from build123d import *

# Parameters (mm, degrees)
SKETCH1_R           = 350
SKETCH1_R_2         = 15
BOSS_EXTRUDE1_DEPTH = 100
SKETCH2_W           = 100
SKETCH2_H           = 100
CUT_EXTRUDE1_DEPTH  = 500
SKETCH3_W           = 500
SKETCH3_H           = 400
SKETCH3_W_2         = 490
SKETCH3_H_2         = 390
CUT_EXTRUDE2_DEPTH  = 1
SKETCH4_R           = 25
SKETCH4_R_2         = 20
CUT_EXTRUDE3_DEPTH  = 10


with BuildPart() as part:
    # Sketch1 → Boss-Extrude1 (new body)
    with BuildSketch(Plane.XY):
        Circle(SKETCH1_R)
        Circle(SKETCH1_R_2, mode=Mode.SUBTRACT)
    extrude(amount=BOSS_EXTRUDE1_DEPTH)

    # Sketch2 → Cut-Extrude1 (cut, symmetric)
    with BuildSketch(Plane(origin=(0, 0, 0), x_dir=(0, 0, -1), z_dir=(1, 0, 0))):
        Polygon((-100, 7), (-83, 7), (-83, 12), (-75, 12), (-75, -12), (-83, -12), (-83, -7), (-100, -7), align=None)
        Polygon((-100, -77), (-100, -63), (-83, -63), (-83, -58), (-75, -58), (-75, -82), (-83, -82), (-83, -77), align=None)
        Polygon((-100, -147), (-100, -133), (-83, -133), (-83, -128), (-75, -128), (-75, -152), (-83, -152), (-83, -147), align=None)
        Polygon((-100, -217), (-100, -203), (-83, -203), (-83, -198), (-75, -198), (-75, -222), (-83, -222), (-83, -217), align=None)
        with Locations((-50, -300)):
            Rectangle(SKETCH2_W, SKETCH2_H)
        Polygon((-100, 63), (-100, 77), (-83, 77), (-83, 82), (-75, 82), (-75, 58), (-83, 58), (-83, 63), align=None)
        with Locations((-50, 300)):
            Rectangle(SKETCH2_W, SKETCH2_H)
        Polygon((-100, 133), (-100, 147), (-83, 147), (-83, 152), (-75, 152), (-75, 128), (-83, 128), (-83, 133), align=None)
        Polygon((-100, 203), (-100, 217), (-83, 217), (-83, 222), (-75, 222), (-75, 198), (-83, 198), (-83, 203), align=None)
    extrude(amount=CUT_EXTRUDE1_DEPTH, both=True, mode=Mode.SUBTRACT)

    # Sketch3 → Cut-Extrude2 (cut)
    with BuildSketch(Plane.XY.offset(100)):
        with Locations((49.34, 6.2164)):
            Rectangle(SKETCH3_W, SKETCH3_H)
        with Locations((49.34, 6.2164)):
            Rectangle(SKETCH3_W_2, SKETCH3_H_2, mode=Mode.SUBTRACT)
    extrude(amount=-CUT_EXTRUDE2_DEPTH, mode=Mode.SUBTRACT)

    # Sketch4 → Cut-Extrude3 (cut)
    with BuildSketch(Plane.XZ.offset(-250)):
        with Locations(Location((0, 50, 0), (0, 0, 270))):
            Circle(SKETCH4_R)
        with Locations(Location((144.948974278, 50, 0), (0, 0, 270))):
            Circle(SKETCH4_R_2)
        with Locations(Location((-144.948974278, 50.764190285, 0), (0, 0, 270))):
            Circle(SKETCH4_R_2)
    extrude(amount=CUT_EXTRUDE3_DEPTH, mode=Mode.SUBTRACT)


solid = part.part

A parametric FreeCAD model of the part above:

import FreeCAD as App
import Part
import Sketcher

doc = App.newDocument("Part")
body = doc.addObject("PartDesign::Body", "Body")

# Sketch on XY plane
sketch1 = doc.addObject("Sketcher::SketchObject", "Sketch")
body.addObject(sketch1)
sketch1.AttachmentSupport = (doc.XY_Plane, [""])
sketch1.MapMode = "FlatFace"
sketch1.addGeometry(Part.Circle(App.Vector(0, 0, 0), App.Vector(0, 0, 1), 350), False)
sketch1.addGeometry(Part.Circle(App.Vector(0, 0, 0), App.Vector(0, 0, 1), 15), False)
sketch1.addConstraint(Sketcher.Constraint("Coincident", 0, 3, -1, 1))
sketch1.addConstraint(Sketcher.Constraint("Coincident", 1, 3, -1, 1))
sketch1.addConstraint(Sketcher.Constraint("Diameter", 0, 700.0))
sketch1.addConstraint(Sketcher.Constraint("Diameter", 1, 30.0))
pad1 = doc.addObject("PartDesign::Pad", "Pad")
body.addObject(pad1)
pad1.Profile = sketch1
pad1.Length = 100

# Sketch on YZ plane
sketch2 = doc.addObject("Sketcher::SketchObject", "Sketch001")
body.addObject(sketch2)
sketch2.AttachmentSupport = (doc.YZ_Plane, [""])
sketch2.MapMode = "FlatFace"
sketch2.addGeometry(Part.LineSegment(App.Vector(7, 83, 0), App.Vector(7, 100, 0)), False)
sketch2.addGeometry(Part.LineSegment(App.Vector(7, 100, 0), App.Vector(-7, 100, 0)), False)
sketch2.addGeometry(Part.LineSegment(App.Vector(-7, 100, 0), App.Vector(-7, 83, 0)), False)
sketch2.addGeometry(Part.LineSegment(App.Vector(-7, 83, 0), App.Vector(-12, 83, 0)), False)
sketch2.addGeometry(Part.LineSegment(App.Vector(-12, 83, 0), App.Vector(-12, 75, 0)), False)
sketch2.addGeometry(Part.LineSegment(App.Vector(-12, 75, 0), App.Vector(12, 75, 0)), False)
sketch2.addGeometry(Part.LineSegment(App.Vector(12, 75, 0), App.Vector(12, 83, 0)), False)
sketch2.addGeometry(Part.LineSegment(App.Vector(12, 83, 0), App.Vector(7, 83, 0)), False)
sketch2.addGeometry(Part.LineSegment(App.Vector(-63, 100, 0), App.Vector(-77, 100, 0)), False)
sketch2.addGeometry(Part.LineSegment(App.Vector(-77, 100, 0), App.Vector(-77, 83, 0)), False)
sketch2.addGeometry(Part.LineSegment(App.Vector(-77, 83, 0), App.Vector(-82, 83, 0)), False)
sketch2.addGeometry(Part.LineSegment(App.Vector(-82, 83, 0), App.Vector(-82, 75, 0)), False)
sketch2.addGeometry(Part.LineSegment(App.Vector(-82, 75, 0), App.Vector(-58, 75, 0)), False)
sketch2.addGeometry(Part.LineSegment(App.Vector(-58, 75, 0), App.Vector(-58, 83, 0)), False)
sketch2.addGeometry(Part.LineSegment(App.Vector(-58, 83, 0), App.Vector(-63, 83, 0)), False)
sketch2.addGeometry(Part.LineSegment(App.Vector(-63, 83, 0), App.Vector(-63, 100, 0)), False)
sketch2.addGeometry(Part.LineSegment(App.Vector(-133, 100, 0), App.Vector(-147, 100, 0)), False)
sketch2.addGeometry(Part.LineSegment(App.Vector(-147, 100, 0), App.Vector(-147, 83, 0)), False)
sketch2.addGeometry(Part.LineSegment(App.Vector(-147, 83, 0), App.Vector(-152, 83, 0)), False)
sketch2.addGeometry(Part.LineSegment(App.Vector(-152, 83, 0), App.Vector(-152, 75, 0)), False)
sketch2.addGeometry(Part.LineSegment(App.Vector(-152, 75, 0), App.Vector(-128, 75, 0)), False)
sketch2.addGeometry(Part.LineSegment(App.Vector(-128, 75, 0), App.Vector(-128, 83, 0)), False)
sketch2.addGeometry(Part.LineSegment(App.Vector(-128, 83, 0), App.Vector(-133, 83, 0)), False)
sketch2.addGeometry(Part.LineSegment(App.Vector(-133, 83, 0), App.Vector(-133, 100, 0)), False)
sketch2.addGeometry(Part.LineSegment(App.Vector(-203, 100, 0), App.Vector(-217, 100, 0)), False)
sketch2.addGeometry(Part.LineSegment(App.Vector(-217, 100, 0), App.Vector(-217, 83, 0)), False)
sketch2.addGeometry(Part.LineSegment(App.Vector(-217, 83, 0), App.Vector(-222, 83, 0)), False)
sketch2.addGeometry(Part.LineSegment(App.Vector(-222, 83, 0), App.Vector(-222, 75, 0)), False)
sketch2.addGeometry(Part.LineSegment(App.Vector(-222, 75, 0), App.Vector(-198, 75, 0)), False)
sketch2.addGeometry(Part.LineSegment(App.Vector(-198, 75, 0), App.Vector(-198, 83, 0)), False)
sketch2.addGeometry(Part.LineSegment(App.Vector(-198, 83, 0), App.Vector(-203, 83, 0)), False)
sketch2.addGeometry(Part.LineSegment(App.Vector(-203, 83, 0), App.Vector(-203, 100, 0)), False)
sketch2.addGeometry(Part.LineSegment(App.Vector(-250, 100, 0), App.Vector(-350, 100, 0)), False)
sketch2.addGeometry(Part.LineSegment(App.Vector(-350, 100, 0), App.Vector(-350, 0, 0)), False)
sketch2.addGeometry(Part.LineSegment(App.Vector(-350, 0, 0), App.Vector(-250, 0, 0)), False)
sketch2.addGeometry(Part.LineSegment(App.Vector(-250, 0, 0), App.Vector(-250, 100, 0)), False)
sketch2.addGeometry(Part.LineSegment(App.Vector(77, 100, 0), App.Vector(63, 100, 0)), False)
sketch2.addGeometry(Part.LineSegment(App.Vector(63, 100, 0), App.Vector(63, 83, 0)), False)
sketch2.addGeometry(Part.LineSegment(App.Vector(63, 83, 0), App.Vector(58, 83, 0)), False)
sketch2.addGeometry(Part.LineSegment(App.Vector(58, 83, 0), App.Vector(58, 75, 0)), False)
sketch2.addGeometry(Part.LineSegment(App.Vector(58, 75, 0), App.Vector(82, 75, 0)), False)
sketch2.addGeometry(Part.LineSegment(App.Vector(82, 75, 0), App.Vector(82, 83, 0)), False)
sketch2.addGeometry(Part.LineSegment(App.Vector(82, 83, 0), App.Vector(77, 83, 0)), False)
sketch2.addGeometry(Part.LineSegment(App.Vector(77, 83, 0), App.Vector(77, 100, 0)), False)
sketch2.addGeometry(Part.LineSegment(App.Vector(350, 100, 0), App.Vector(250, 100, 0)), False)
sketch2.addGeometry(Part.LineSegment(App.Vector(250, 100, 0), App.Vector(250, 0, 0)), False)
sketch2.addGeometry(Part.LineSegment(App.Vector(250, 0, 0), App.Vector(350, 0, 0)), False)
sketch2.addGeometry(Part.LineSegment(App.Vector(350, 0, 0), App.Vector(350, 100, 0)), False)
sketch2.addGeometry(Part.LineSegment(App.Vector(147, 100, 0), App.Vector(133, 100, 0)), False)
sketch2.addGeometry(Part.LineSegment(App.Vector(133, 100, 0), App.Vector(133, 83, 0)), False)
sketch2.addGeometry(Part.LineSegment(App.Vector(133, 83, 0), App.Vector(128, 83, 0)), False)
sketch2.addGeometry(Part.LineSegment(App.Vector(128, 83, 0), App.Vector(128, 75, 0)), False)
sketch2.addGeometry(Part.LineSegment(App.Vector(128, 75, 0), App.Vector(152, 75, 0)), False)
sketch2.addGeometry(Part.LineSegment(App.Vector(152, 75, 0), App.Vector(152, 83, 0)), False)
sketch2.addGeometry(Part.LineSegment(App.Vector(152, 83, 0), App.Vector(147, 83, 0)), False)
sketch2.addGeometry(Part.LineSegment(App.Vector(147, 83, 0), App.Vector(147, 100, 0)), False)
sketch2.addGeometry(Part.LineSegment(App.Vector(217, 100, 0), App.Vector(203, 100, 0)), False)
sketch2.addGeometry(Part.LineSegment(App.Vector(203, 100, 0), App.Vector(203, 83, 0)), False)
sketch2.addGeometry(Part.LineSegment(App.Vector(203, 83, 0), App.Vector(198, 83, 0)), False)
sketch2.addGeometry(Part.LineSegment(App.Vector(198, 83, 0), App.Vector(198, 75, 0)), False)
sketch2.addGeometry(Part.LineSegment(App.Vector(198, 75, 0), App.Vector(222, 75, 0)), False)
sketch2.addGeometry(Part.LineSegment(App.Vector(222, 75, 0), App.Vector(222, 83, 0)), False)
sketch2.addGeometry(Part.LineSegment(App.Vector(222, 83, 0), App.Vector(217, 83, 0)), False)
sketch2.addGeometry(Part.LineSegment(App.Vector(217, 83, 0), App.Vector(217, 100, 0)), False)
sketch2.addConstraint(Sketcher.Constraint("Coincident", 0, 2, 1, 1))
sketch2.addConstraint(Sketcher.Constraint("Coincident", 1, 2, 2, 1))
sketch2.addConstraint(Sketcher.Constraint("Coincident", 2, 2, 3, 1))
sketch2.addConstraint(Sketcher.Constraint("Coincident", 3, 2, 4, 1))
sketch2.addConstraint(Sketcher.Constraint("Coincident", 4, 2, 5, 1))
sketch2.addConstraint(Sketcher.Constraint("Coincident", 5, 2, 6, 1))
sketch2.addConstraint(Sketcher.Constraint("Coincident", 6, 2, 7, 1))
sketch2.addConstraint(Sketcher.Constraint("Coincident", 7, 2, 0, 1))
sketch2.addConstraint(Sketcher.Constraint("Coincident", 8, 2, 9, 1))
sketch2.addConstraint(Sketcher.Constraint("Coincident", 9, 2, 10, 1))
sketch2.addConstraint(Sketcher.Constraint("Coincident", 10, 2, 11, 1))
sketch2.addConstraint(Sketcher.Constraint("Coincident", 11, 2, 12, 1))
sketch2.addConstraint(Sketcher.Constraint("Coincident", 12, 2, 13, 1))
sketch2.addConstraint(Sketcher.Constraint("Coincident", 13, 2, 14, 1))
sketch2.addConstraint(Sketcher.Constraint("Coincident", 14, 2, 15, 1))
sketch2.addConstraint(Sketcher.Constraint("Coincident", 15, 2, 8, 1))
sketch2.addConstraint(Sketcher.Constraint("Coincident", 16, 2, 17, 1))
sketch2.addConstraint(Sketcher.Constraint("Coincident", 17, 2, 18, 1))
sketch2.addConstraint(Sketcher.Constraint("Coincident", 18, 2, 19, 1))
sketch2.addConstraint(Sketcher.Constraint("Coincident", 19, 2, 20, 1))
sketch2.addConstraint(Sketcher.Constraint("Coincident", 20, 2, 21, 1))
sketch2.addConstraint(Sketcher.Constraint("Coincident", 21, 2, 22, 1))
sketch2.addConstraint(Sketcher.Constraint("Coincident", 22, 2, 23, 1))
sketch2.addConstraint(Sketcher.Constraint("Coincident", 23, 2, 16, 1))
sketch2.addConstraint(Sketcher.Constraint("Coincident", 24, 2, 25, 1))
sketch2.addConstraint(Sketcher.Constraint("Coincident", 25, 2, 26, 1))
sketch2.addConstraint(Sketcher.Constraint("Coincident", 26, 2, 27, 1))
sketch2.addConstraint(Sketcher.Constraint("Coincident", 27, 2, 28, 1))
sketch2.addConstraint(Sketcher.Constraint("Coincident", 28, 2, 29, 1))
sketch2.addConstraint(Sketcher.Constraint("Coincident", 29, 2, 30, 1))
sketch2.addConstraint(Sketcher.Constraint("Coincident", 30, 2, 31, 1))
sketch2.addConstraint(Sketcher.Constraint("Coincident", 31, 2, 24, 1))
sketch2.addConstraint(Sketcher.Constraint("Coincident", 32, 2, 33, 1))
sketch2.addConstraint(Sketcher.Constraint("Coincident", 33, 2, 34, 1))
sketch2.addConstraint(Sketcher.Constraint("Coincident", 34, 2, 35, 1))
sketch2.addConstraint(Sketcher.Constraint("Coincident", 35, 2, 32, 1))
sketch2.addConstraint(Sketcher.Constraint("Coincident", 36, 2, 37, 1))
sketch2.addConstraint(Sketcher.Constraint("Coincident", 37, 2, 38, 1))
sketch2.addConstraint(Sketcher.Constraint("Coincident", 38, 2, 39, 1))
sketch2.addConstraint(Sketcher.Constraint("Coincident", 39, 2, 40, 1))
sketch2.addConstraint(Sketcher.Constraint("Coincident", 40, 2, 41, 1))
sketch2.addConstraint(Sketcher.Constraint("Coincident", 41, 2, 42, 1))
sketch2.addConstraint(Sketcher.Constraint("Coincident", 42, 2, 43, 1))
sketch2.addConstraint(Sketcher.Constraint("Coincident", 43, 2, 36, 1))
sketch2.addConstraint(Sketcher.Constraint("Coincident", 44, 2, 45, 1))
sketch2.addConstraint(Sketcher.Constraint("Coincident", 45, 2, 46, 1))
sketch2.addConstraint(Sketcher.Constraint("Coincident", 46, 2, 47, 1))
sketch2.addConstraint(Sketcher.Constraint("Coincident", 47, 2, 44, 1))
sketch2.addConstraint(Sketcher.Constraint("Coincident", 48, 2, 49, 1))
sketch2.addConstraint(Sketcher.Constraint("Coincident", 49, 2, 50, 1))
sketch2.addConstraint(Sketcher.Constraint("Coincident", 50, 2, 51, 1))
sketch2.addConstraint(Sketcher.Constraint("Coincident", 51, 2, 52, 1))
sketch2.addConstraint(Sketcher.Constraint("Coincident", 52, 2, 53, 1))
sketch2.addConstraint(Sketcher.Constraint("Coincident", 53, 2, 54, 1))
sketch2.addConstraint(Sketcher.Constraint("Coincident", 54, 2, 55, 1))
sketch2.addConstraint(Sketcher.Constraint("Coincident", 55, 2, 48, 1))
sketch2.addConstraint(Sketcher.Constraint("Coincident", 56, 2, 57, 1))
sketch2.addConstraint(Sketcher.Constraint("Coincident", 57, 2, 58, 1))
sketch2.addConstraint(Sketcher.Constraint("Coincident", 58, 2, 59, 1))
sketch2.addConstraint(Sketcher.Constraint("Coincident", 59, 2, 60, 1))
sketch2.addConstraint(Sketcher.Constraint("Coincident", 60, 2, 61, 1))
sketch2.addConstraint(Sketcher.Constraint("Coincident", 61, 2, 62, 1))
sketch2.addConstraint(Sketcher.Constraint("Coincident", 62, 2, 63, 1))
sketch2.addConstraint(Sketcher.Constraint("Coincident", 63, 2, 56, 1))
sketch2.addConstraint(Sketcher.Constraint("Vertical", 0))
sketch2.addConstraint(Sketcher.Constraint("Horizontal", 1))
sketch2.addConstraint(Sketcher.Constraint("Vertical", 2))
sketch2.addConstraint(Sketcher.Constraint("Horizontal", 3))
sketch2.addConstraint(Sketcher.Constraint("Vertical", 4))
sketch2.addConstraint(Sketcher.Constraint("Horizontal", 5))
sketch2.addConstraint(Sketcher.Constraint("Vertical", 6))
sketch2.addConstraint(Sketcher.Constraint("Horizontal", 7))
sketch2.addConstraint(Sketcher.Constraint("Horizontal", 8))
sketch2.addConstraint(Sketcher.Constraint("Vertical", 9))
sketch2.addConstraint(Sketcher.Constraint("Horizontal", 10))
sketch2.addConstraint(Sketcher.Constraint("Vertical", 11))
sketch2.addConstraint(Sketcher.Constraint("Horizontal", 12))
sketch2.addConstraint(Sketcher.Constraint("Vertical", 13))
sketch2.addConstraint(Sketcher.Constraint("Horizontal", 14))
sketch2.addConstraint(Sketcher.Constraint("Vertical", 15))
sketch2.addConstraint(Sketcher.Constraint("Horizontal", 16))
sketch2.addConstraint(Sketcher.Constraint("Vertical", 17))
sketch2.addConstraint(Sketcher.Constraint("Horizontal", 18))
sketch2.addConstraint(Sketcher.Constraint("Vertical", 19))
sketch2.addConstraint(Sketcher.Constraint("Horizontal", 20))
sketch2.addConstraint(Sketcher.Constraint("Vertical", 21))
sketch2.addConstraint(Sketcher.Constraint("Horizontal", 22))
sketch2.addConstraint(Sketcher.Constraint("Vertical", 23))
sketch2.addConstraint(Sketcher.Constraint("Horizontal", 24))
sketch2.addConstraint(Sketcher.Constraint("Vertical", 25))
sketch2.addConstraint(Sketcher.Constraint("Horizontal", 26))
sketch2.addConstraint(Sketcher.Constraint("Vertical", 27))
sketch2.addConstraint(Sketcher.Constraint("Horizontal", 28))
sketch2.addConstraint(Sketcher.Constraint("Vertical", 29))
sketch2.addConstraint(Sketcher.Constraint("Horizontal", 30))
sketch2.addConstraint(Sketcher.Constraint("Vertical", 31))
sketch2.addConstraint(Sketcher.Constraint("Horizontal", 32))
sketch2.addConstraint(Sketcher.Constraint("Vertical", 33))
sketch2.addConstraint(Sketcher.Constraint("Horizontal", 34))
sketch2.addConstraint(Sketcher.Constraint("Vertical", 35))
sketch2.addConstraint(Sketcher.Constraint("Horizontal", 36))
sketch2.addConstraint(Sketcher.Constraint("Vertical", 37))
sketch2.addConstraint(Sketcher.Constraint("Horizontal", 38))
sketch2.addConstraint(Sketcher.Constraint("Vertical", 39))
sketch2.addConstraint(Sketcher.Constraint("Horizontal", 40))
sketch2.addConstraint(Sketcher.Constraint("Vertical", 41))
sketch2.addConstraint(Sketcher.Constraint("Horizontal", 42))
sketch2.addConstraint(Sketcher.Constraint("Vertical", 43))
sketch2.addConstraint(Sketcher.Constraint("Horizontal", 44))
sketch2.addConstraint(Sketcher.Constraint("Vertical", 45))
sketch2.addConstraint(Sketcher.Constraint("Horizontal", 46))
sketch2.addConstraint(Sketcher.Constraint("Vertical", 47))
sketch2.addConstraint(Sketcher.Constraint("Horizontal", 48))
sketch2.addConstraint(Sketcher.Constraint("Vertical", 49))
sketch2.addConstraint(Sketcher.Constraint("Horizontal", 50))
sketch2.addConstraint(Sketcher.Constraint("Vertical", 51))
sketch2.addConstraint(Sketcher.Constraint("Horizontal", 52))
sketch2.addConstraint(Sketcher.Constraint("Vertical", 53))
sketch2.addConstraint(Sketcher.Constraint("Horizontal", 54))
sketch2.addConstraint(Sketcher.Constraint("Vertical", 55))
sketch2.addConstraint(Sketcher.Constraint("Horizontal", 56))
sketch2.addConstraint(Sketcher.Constraint("Vertical", 57))
sketch2.addConstraint(Sketcher.Constraint("Horizontal", 58))
sketch2.addConstraint(Sketcher.Constraint("Vertical", 59))
sketch2.addConstraint(Sketcher.Constraint("Horizontal", 60))
sketch2.addConstraint(Sketcher.Constraint("Vertical", 61))
sketch2.addConstraint(Sketcher.Constraint("Horizontal", 62))
sketch2.addConstraint(Sketcher.Constraint("Vertical", 63))
sketch2.addConstraint(Sketcher.Constraint("Symmetric", 34, 2, 45, 2, -1, 1))
sketch2.addConstraint(Sketcher.Constraint("Symmetric", 3, 2, 6, 2, -2))
sketch2.addConstraint(Sketcher.Constraint("Symmetric", 15, 2, 36, 2, -2))
sketch2.addConstraint(Sketcher.Constraint("Symmetric", 13, 2, 38, 2, -2))
sketch2.addConstraint(Sketcher.Constraint("Symmetric", 11, 2, 40, 2, -2))
sketch2.addConstraint(Sketcher.Constraint("Symmetric", 9, 2, 42, 2, -2))
sketch2.addConstraint(Sketcher.Constraint("Symmetric", 33, 2, 46, 2, -2))
sketch2.addConstraint(Sketcher.Constraint("Symmetric", 23, 2, 48, 2, -2))
sketch2.addConstraint(Sketcher.Constraint("Symmetric", 21, 2, 50, 2, -2))
sketch2.addConstraint(Sketcher.Constraint("Symmetric", 19, 2, 52, 2, -2))
sketch2.addConstraint(Sketcher.Constraint("Symmetric", 17, 2, 54, 2, -2))
sketch2.addConstraint(Sketcher.Constraint("Symmetric", 31, 2, 56, 2, -2))
sketch2.addConstraint(Sketcher.Constraint("Symmetric", 29, 2, 58, 2, -2))
sketch2.addConstraint(Sketcher.Constraint("Symmetric", 27, 2, 60, 2, -2))
sketch2.addConstraint(Sketcher.Constraint("Symmetric", 25, 2, 62, 2, -2))
sketch2.addConstraint(Sketcher.Constraint("Horizontal", 1, 2, 8, 2))
sketch2.addConstraint(Sketcher.Constraint("Horizontal", 7, 2, 9, 2))
sketch2.addConstraint(Sketcher.Constraint("Horizontal", 5, 2, 11, 2))
sketch2.addConstraint(Sketcher.Constraint("Horizontal", 10, 2, 13, 2))
sketch2.addConstraint(Sketcher.Constraint("Horizontal", 15, 2, 16, 2))
sketch2.addConstraint(Sketcher.Constraint("Horizontal", 14, 2, 17, 2))
sketch2.addConstraint(Sketcher.Constraint("Horizontal", 12, 2, 19, 2))
sketch2.addConstraint(Sketcher.Constraint("Horizontal", 18, 2, 21, 2))
sketch2.addConstraint(Sketcher.Constraint("Horizontal", 23, 2, 24, 2))
sketch2.addConstraint(Sketcher.Constraint("Horizontal", 22, 2, 25, 2))
sketch2.addConstraint(Sketcher.Constraint("Horizontal", 20, 2, 27, 2))
sketch2.addConstraint(Sketcher.Constraint("Horizontal", 26, 2, 29, 2))
sketch2.addConstraint(Sketcher.Constraint("Horizontal", 31, 2, 32, 2))
sketch2.addConstraint(Sketcher.Constraint("Horizontal", 43, 2, 44, 2))
sketch2.addConstraint(Sketcher.Constraint("Equal", 3, 7))
sketch2.addConstraint(Sketcher.Constraint("Equal", 1, 8))
sketch2.addConstraint(Sketcher.Constraint("Equal", 7, 10))
sketch2.addConstraint(Sketcher.Constraint("Equal", 5, 12))
sketch2.addConstraint(Sketcher.Constraint("Equal", 8, 16))
sketch2.addConstraint(Sketcher.Constraint("Equal", 14, 18))
sketch2.addConstraint(Sketcher.Constraint("Equal", 12, 20))
sketch2.addConstraint(Sketcher.Constraint("Equal", 16, 24))
sketch2.addConstraint(Sketcher.Constraint("Equal", 22, 26))
sketch2.addConstraint(Sketcher.Constraint("Equal", 20, 28))
sketch2.addConstraint(Sketcher.Constraint("Equal", 46, 33))
sketch2.addConstraint(Sketcher.Constraint("DistanceX", 1, 2, 1, 1, 14.0))
sketch2.addConstraint(Sketcher.Constraint("DistanceX", 3, 2, 3, 1, 5.0))
sketch2.addConstraint(Sketcher.Constraint("DistanceX", 32, 2, 32, 1, 100.0))
sketch2.addConstraint(Sketcher.Constraint("DistanceY", 0, 1, 0, 2, 17.0))
sketch2.addConstraint(Sketcher.Constraint("DistanceY", 4, 2, 4, 1, 8.0))
sketch2.addConstraint(Sketcher.Constraint("DistanceX", 8, 2, -1, 1, 77.0))
sketch2.addConstraint(Sketcher.Constraint("DistanceX", 16, 2, -1, 1, 147.0))
sketch2.addConstraint(Sketcher.Constraint("DistanceX", 24, 2, -1, 1, 217.0))
sketch2.addConstraint(Sketcher.Constraint("DistanceX", 32, 2, -1, 1, 350.0))
pocket1 = doc.addObject("PartDesign::Pocket", "Pocket")
body.addObject(pocket1)
pocket1.Profile = sketch2
pocket1.Length = 1000
pocket1.Midplane = True

# Sketch on XY plane
sketch3 = doc.addObject("Sketcher::SketchObject", "Sketch002")
body.addObject(sketch3)
sketch3.AttachmentSupport = (doc.XY_Plane, [""])
sketch3.MapMode = "FlatFace"
sketch3.AttachmentOffset = App.Placement(App.Vector(0, 0, 100), App.Rotation())
sketch3.addGeometry(Part.LineSegment(App.Vector(-201, 206, 0), App.Vector(-201, -194, 0)), False)
sketch3.addGeometry(Part.LineSegment(App.Vector(-201, -194, 0), App.Vector(299, -194, 0)), False)
sketch3.addGeometry(Part.LineSegment(App.Vector(299, -194, 0), App.Vector(299, 206, 0)), False)
sketch3.addGeometry(Part.LineSegment(App.Vector(299, 206, 0), App.Vector(-201, 206, 0)), False)
sketch3.addGeometry(Part.LineSegment(App.Vector(294, -189, 0), App.Vector(-196, -189, 0)), False)
sketch3.addGeometry(Part.LineSegment(App.Vector(-196, -189, 0), App.Vector(-196, 201, 0)), False)
sketch3.addGeometry(Part.LineSegment(App.Vector(-196, 201, 0), App.Vector(294, 201, 0)), False)
sketch3.addGeometry(Part.LineSegment(App.Vector(294, 201, 0), App.Vector(294, -189, 0)), False)
sketch3.addConstraint(Sketcher.Constraint("Coincident", 0, 2, 1, 1))
sketch3.addConstraint(Sketcher.Constraint("Coincident", 1, 2, 2, 1))
sketch3.addConstraint(Sketcher.Constraint("Coincident", 2, 2, 3, 1))
sketch3.addConstraint(Sketcher.Constraint("Coincident", 3, 2, 0, 1))
sketch3.addConstraint(Sketcher.Constraint("Coincident", 4, 2, 5, 1))
sketch3.addConstraint(Sketcher.Constraint("Coincident", 5, 2, 6, 1))
sketch3.addConstraint(Sketcher.Constraint("Coincident", 6, 2, 7, 1))
sketch3.addConstraint(Sketcher.Constraint("Coincident", 7, 2, 4, 1))
sketch3.addConstraint(Sketcher.Constraint("Vertical", 0))
sketch3.addConstraint(Sketcher.Constraint("Horizontal", 1))
sketch3.addConstraint(Sketcher.Constraint("Vertical", 2))
sketch3.addConstraint(Sketcher.Constraint("Horizontal", 3))
sketch3.addConstraint(Sketcher.Constraint("Horizontal", 4))
sketch3.addConstraint(Sketcher.Constraint("Vertical", 5))
sketch3.addConstraint(Sketcher.Constraint("Horizontal", 6))
sketch3.addConstraint(Sketcher.Constraint("Vertical", 7))
sketch3.addConstraint(Sketcher.Constraint("DistanceX", 1, 1, 1, 2, 500.0))
sketch3.addConstraint(Sketcher.Constraint("DistanceX", 4, 2, 4, 1, 490.0))
sketch3.addConstraint(Sketcher.Constraint("DistanceY", 0, 2, 0, 1, 400.0))
sketch3.addConstraint(Sketcher.Constraint("DistanceY", 5, 1, 5, 2, 390.0))
sketch3.addConstraint(Sketcher.Constraint("DistanceX", 0, 2, 4, 2, 5.0))
sketch3.addConstraint(Sketcher.Constraint("DistanceY", 0, 2, 4, 2, 5.0))
sketch3.addConstraint(Sketcher.Constraint("DistanceX", 0, 2, -1, 1, 200.66))
sketch3.addConstraint(Sketcher.Constraint("DistanceY", 0, 2, -1, 1, 193.7836))
pocket2 = doc.addObject("PartDesign::Pocket", "Pocket001")
body.addObject(pocket2)
pocket2.Profile = sketch3
pocket2.Length = 1

# Sketch on XZ plane
sketch4 = doc.addObject("Sketcher::SketchObject", "Sketch003")
body.addObject(sketch4)
sketch4.AttachmentSupport = (doc.XZ_Plane, [""])
sketch4.MapMode = "FlatFace"
sketch4.AttachmentOffset = App.Placement(App.Vector(0, 0, -250), App.Rotation())
sketch4.addGeometry(Part.Circle(App.Vector(0, 50, 0), App.Vector(0, 0, 1), 25), False)
sketch4.addGeometry(Part.Circle(App.Vector(145, 50, 0), App.Vector(0, 0, 1), 20), False)
sketch4.addGeometry(Part.Circle(App.Vector(-145, 51, 0), App.Vector(0, 0, 1), 20), False)
sketch4.addConstraint(Sketcher.Constraint("Equal", 1, 2))
sketch4.addConstraint(Sketcher.Constraint("PointOnObject", 0, 3, -2))
sketch4.addConstraint(Sketcher.Constraint("Horizontal", 0, 3, 1, 3))
sketch4.addConstraint(Sketcher.Constraint("Diameter", 0, 50.0))
sketch4.addConstraint(Sketcher.Constraint("Diameter", 1, 40.0))
sketch4.addConstraint(Sketcher.Constraint("DistanceY", -1, 1, 0, 3, 50.0))
sketch4.addConstraint(Sketcher.Constraint("DistanceY", -1, 1, 2, 3, 50.76419))
sketch4.addConstraint(Sketcher.Constraint("DistanceX", 2, 3, 1, 3, 289.897949))
sketch4.addConstraint(Sketcher.Constraint("DistanceX", -1, 1, 1, 3, 144.948974))
pocket3 = doc.addObject("PartDesign::Pocket", "Pocket002")
body.addObject(pocket3)
pocket3.Profile = sketch4
pocket3.Length = 10
pocket3.Reversed = True

doc.recompute()
